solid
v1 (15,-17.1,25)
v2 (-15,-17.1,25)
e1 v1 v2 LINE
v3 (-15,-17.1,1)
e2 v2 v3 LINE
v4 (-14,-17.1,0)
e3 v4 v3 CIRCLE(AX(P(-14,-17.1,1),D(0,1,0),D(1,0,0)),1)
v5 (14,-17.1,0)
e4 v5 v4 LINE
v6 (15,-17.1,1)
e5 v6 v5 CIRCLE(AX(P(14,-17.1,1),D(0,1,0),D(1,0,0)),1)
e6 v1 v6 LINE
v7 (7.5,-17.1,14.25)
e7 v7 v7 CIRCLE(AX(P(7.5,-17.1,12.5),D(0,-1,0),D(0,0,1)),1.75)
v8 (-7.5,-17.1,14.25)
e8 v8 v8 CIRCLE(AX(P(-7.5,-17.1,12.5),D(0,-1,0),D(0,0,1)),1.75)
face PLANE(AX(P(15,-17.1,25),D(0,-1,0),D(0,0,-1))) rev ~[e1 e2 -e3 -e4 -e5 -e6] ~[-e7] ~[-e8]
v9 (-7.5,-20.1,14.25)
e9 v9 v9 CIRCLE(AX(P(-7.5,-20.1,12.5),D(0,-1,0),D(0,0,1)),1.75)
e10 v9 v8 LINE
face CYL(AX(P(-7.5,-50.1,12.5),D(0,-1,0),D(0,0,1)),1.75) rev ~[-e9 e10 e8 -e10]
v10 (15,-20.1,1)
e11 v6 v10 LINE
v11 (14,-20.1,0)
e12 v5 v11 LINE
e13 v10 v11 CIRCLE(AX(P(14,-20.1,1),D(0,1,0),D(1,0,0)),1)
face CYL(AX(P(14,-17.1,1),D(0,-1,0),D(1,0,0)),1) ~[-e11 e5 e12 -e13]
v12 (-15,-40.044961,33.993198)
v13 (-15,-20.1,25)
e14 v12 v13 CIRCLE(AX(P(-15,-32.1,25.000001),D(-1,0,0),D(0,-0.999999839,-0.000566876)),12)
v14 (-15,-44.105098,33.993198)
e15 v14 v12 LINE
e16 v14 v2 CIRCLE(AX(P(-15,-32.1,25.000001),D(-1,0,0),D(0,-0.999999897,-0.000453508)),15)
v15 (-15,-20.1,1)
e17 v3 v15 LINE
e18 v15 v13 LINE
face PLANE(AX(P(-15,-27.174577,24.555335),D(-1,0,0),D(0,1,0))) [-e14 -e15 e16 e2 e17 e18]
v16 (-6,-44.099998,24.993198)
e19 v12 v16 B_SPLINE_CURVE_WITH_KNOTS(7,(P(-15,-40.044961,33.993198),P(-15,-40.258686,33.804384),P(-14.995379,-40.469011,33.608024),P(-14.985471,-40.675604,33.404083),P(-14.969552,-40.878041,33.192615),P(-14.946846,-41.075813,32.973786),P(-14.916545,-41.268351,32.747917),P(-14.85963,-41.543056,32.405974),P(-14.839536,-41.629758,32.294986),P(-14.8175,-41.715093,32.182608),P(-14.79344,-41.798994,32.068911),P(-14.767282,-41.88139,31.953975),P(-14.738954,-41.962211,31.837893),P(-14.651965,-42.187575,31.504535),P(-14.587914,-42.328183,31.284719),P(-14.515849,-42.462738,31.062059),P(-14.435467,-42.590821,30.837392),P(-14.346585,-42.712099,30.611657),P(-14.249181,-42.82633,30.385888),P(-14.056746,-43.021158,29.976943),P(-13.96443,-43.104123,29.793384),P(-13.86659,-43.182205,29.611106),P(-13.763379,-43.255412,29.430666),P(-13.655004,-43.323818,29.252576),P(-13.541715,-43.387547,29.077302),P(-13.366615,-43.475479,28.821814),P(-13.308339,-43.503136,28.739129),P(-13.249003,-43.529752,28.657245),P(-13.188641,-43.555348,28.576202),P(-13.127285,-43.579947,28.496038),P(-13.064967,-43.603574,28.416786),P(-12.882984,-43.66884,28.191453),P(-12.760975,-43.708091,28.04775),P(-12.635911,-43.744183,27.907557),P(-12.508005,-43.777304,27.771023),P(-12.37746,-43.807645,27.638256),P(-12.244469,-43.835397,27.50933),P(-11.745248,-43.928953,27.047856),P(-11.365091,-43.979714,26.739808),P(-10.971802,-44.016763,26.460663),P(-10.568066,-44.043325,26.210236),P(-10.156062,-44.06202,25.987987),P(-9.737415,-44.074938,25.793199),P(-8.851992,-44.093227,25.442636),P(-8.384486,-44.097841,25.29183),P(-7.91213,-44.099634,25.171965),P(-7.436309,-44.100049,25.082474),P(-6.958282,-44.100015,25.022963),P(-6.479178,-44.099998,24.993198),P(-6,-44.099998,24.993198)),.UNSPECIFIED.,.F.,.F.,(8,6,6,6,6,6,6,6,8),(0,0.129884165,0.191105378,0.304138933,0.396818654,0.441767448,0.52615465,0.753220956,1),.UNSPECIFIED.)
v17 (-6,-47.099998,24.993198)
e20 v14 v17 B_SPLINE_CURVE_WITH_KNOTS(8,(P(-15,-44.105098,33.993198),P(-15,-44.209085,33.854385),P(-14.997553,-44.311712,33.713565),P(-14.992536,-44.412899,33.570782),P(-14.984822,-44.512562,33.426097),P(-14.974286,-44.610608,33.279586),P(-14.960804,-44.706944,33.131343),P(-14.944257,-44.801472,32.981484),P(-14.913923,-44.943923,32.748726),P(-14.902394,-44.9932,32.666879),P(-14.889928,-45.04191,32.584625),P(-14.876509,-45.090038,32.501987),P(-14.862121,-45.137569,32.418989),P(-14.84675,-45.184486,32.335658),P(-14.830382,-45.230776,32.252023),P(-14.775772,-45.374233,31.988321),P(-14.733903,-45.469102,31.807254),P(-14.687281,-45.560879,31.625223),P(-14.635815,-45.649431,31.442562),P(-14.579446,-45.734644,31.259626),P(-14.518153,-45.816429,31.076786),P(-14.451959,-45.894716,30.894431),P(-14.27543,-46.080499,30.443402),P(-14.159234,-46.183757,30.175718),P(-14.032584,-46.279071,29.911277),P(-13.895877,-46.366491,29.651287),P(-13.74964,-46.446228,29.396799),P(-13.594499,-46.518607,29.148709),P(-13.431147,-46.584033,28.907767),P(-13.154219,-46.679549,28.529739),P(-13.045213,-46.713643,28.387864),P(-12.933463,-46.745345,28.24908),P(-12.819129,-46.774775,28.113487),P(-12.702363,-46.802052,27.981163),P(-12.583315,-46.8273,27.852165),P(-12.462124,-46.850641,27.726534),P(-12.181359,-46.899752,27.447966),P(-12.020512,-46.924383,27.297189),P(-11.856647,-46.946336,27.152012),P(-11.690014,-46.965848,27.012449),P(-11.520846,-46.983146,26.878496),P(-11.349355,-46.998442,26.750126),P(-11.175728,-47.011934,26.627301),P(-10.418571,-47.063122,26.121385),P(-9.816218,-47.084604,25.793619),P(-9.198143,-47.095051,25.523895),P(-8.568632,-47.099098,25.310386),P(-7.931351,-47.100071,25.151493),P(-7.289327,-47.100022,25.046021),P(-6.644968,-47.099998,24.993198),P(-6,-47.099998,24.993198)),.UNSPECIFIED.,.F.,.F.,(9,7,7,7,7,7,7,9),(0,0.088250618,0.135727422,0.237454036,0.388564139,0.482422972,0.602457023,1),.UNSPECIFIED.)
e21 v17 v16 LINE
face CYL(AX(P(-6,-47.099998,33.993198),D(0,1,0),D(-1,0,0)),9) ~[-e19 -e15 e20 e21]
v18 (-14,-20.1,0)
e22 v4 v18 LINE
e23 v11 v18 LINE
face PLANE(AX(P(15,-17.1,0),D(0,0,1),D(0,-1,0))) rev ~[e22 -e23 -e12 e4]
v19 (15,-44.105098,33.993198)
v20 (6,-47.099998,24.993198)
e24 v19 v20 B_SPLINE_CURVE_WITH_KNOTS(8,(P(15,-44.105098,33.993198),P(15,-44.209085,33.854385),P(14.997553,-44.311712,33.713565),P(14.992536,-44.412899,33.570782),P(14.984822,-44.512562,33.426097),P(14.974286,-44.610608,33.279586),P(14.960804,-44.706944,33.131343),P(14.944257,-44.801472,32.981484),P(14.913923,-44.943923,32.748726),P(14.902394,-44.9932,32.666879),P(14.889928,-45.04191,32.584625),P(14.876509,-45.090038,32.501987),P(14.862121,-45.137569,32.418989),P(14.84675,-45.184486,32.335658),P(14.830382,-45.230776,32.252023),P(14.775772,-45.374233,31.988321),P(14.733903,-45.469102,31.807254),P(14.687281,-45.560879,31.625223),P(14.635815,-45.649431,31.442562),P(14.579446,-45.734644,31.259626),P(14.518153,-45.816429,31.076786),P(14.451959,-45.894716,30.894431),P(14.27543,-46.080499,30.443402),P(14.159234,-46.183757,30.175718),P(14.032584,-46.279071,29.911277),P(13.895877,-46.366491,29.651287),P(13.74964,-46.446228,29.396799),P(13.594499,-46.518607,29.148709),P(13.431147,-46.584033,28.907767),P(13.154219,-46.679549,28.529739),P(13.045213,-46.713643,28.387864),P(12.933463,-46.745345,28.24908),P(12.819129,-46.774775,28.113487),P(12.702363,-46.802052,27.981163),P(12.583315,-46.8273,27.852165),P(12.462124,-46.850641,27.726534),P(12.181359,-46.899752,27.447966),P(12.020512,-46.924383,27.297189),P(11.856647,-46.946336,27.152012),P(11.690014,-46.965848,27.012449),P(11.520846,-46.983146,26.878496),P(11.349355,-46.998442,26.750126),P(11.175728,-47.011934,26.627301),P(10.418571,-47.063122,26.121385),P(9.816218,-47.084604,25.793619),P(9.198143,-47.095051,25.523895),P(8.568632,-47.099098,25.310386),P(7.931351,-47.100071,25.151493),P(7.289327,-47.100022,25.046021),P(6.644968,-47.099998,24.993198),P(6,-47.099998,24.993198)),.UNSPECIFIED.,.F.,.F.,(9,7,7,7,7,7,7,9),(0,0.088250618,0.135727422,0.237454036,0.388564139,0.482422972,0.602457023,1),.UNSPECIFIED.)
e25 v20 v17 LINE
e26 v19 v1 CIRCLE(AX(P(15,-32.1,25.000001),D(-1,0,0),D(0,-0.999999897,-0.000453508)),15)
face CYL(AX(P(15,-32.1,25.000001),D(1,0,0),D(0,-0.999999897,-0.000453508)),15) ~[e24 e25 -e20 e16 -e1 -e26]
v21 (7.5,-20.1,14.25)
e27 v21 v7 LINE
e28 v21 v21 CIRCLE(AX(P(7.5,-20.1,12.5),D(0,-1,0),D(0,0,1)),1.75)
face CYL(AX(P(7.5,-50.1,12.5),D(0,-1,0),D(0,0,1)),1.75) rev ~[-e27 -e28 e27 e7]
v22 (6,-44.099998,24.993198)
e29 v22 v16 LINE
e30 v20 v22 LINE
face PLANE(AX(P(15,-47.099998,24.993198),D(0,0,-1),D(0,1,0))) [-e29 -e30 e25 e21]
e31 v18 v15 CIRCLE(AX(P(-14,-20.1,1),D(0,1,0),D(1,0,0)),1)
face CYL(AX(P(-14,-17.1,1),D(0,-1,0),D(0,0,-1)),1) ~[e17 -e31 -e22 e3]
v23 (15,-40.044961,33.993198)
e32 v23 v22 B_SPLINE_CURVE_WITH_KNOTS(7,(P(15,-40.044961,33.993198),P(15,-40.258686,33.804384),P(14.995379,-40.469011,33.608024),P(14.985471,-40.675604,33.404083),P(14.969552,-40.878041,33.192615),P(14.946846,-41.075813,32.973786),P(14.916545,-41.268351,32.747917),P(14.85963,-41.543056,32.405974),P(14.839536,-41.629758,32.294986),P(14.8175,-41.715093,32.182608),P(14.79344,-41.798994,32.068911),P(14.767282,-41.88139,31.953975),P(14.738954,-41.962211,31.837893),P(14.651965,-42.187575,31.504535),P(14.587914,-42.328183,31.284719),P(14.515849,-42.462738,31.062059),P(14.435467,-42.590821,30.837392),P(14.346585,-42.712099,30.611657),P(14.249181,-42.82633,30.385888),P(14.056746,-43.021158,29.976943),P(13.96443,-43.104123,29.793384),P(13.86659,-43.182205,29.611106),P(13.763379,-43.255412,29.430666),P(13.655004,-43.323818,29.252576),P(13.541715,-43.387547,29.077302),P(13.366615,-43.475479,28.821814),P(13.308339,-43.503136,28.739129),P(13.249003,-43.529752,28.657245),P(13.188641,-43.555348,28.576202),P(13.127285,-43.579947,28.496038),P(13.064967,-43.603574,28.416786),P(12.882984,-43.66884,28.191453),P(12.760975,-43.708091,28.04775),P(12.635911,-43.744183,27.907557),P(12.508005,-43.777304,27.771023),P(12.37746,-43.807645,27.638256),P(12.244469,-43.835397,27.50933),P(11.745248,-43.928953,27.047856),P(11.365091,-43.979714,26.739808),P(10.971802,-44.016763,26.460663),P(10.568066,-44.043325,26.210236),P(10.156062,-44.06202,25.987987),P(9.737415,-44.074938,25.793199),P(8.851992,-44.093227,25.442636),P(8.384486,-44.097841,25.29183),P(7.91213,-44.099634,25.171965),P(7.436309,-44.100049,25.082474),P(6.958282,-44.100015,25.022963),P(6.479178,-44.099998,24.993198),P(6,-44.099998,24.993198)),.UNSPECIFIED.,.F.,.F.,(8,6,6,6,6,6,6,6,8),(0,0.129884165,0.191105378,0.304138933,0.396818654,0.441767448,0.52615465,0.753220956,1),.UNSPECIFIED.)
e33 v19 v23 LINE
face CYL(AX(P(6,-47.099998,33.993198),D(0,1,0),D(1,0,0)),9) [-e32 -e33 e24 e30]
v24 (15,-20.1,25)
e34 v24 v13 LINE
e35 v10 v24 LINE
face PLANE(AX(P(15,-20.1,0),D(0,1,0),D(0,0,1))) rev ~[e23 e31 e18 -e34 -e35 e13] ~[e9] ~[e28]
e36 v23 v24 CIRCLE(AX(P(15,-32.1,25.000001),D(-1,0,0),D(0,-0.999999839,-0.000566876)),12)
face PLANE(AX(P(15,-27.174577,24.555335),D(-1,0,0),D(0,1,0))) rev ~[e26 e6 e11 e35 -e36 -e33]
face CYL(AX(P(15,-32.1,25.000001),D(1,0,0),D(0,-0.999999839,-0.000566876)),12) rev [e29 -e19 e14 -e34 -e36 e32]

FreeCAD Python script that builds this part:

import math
import FreeCAD as App
import Part
import Sketcher

V = App.Vector


def edges_at(feature, points):
    """Names of the edges that pass closest to the given points."""
    edges = feature.Shape.Edges
    near = lambda p: min(range(len(edges)), key=lambda i: edges[i].distToShape(Part.Vertex(*p))[0])
    return sorted({f"Edge{near(p) + 1}" for p in points})

doc = App.newDocument("Part")
params = doc.addObject("Spreadsheet::Sheet", "Params")
for row, (alias, value) in enumerate([
    ("sketch1_radius", "12 mm"),
    ("sketch1_radius2", "15 mm"),
    ("sketch1_height", "25 mm"),
    ("pad1_length", "30 mm"),
    ("sketch2_diameter", "3.5 mm"),
    ("fillet_radius", "9 mm"),
    ("fillet2_radius", "1 mm"),
], start=1):
    params.set(f"A{row}", alias)
    params.set(f"B{row}", "=" + value)
    params.setAlias(f"B{row}", alias)

body = doc.addObject("PartDesign::Body", "Body")

# Sketch on XY plane
sketch1 = body.newObject("Sketcher::SketchObject", "Sketch")
sketch1.AttachmentSupport = (doc.getObject("XY_Plane"), [""])
sketch1.MapMode = "FlatFace"
sketch1.addGeometry(Part.LineSegment(V(0, 25, 0), V(-3, 25, 0)), False)
sketch1.addGeometry(Part.LineSegment(V(-3, 25, 0), V(-3, 0, 0)), False)
sketch1.addGeometry(Part.ArcOfCircle(Part.Circle(V(-15, -0.000001, 0), V(0, 0, 1), 12), math.radians(179.96752), math.radians(360.000002)), False)
sketch1.addGeometry(Part.LineSegment(V(-26.999998, 0.006802, 0), V(-29.999998, 0.006802, 0)), False)
sketch1.addGeometry(Part.ArcOfCircle(Part.Circle(V(-15, -0.000001, 0), V(0, 0, 1), 15), math.radians(179.974016), math.radians(360.000002)), False)
sketch1.addGeometry(Part.LineSegment(V(0, 0, 0), V(0, 25, 0)), False)
sketch1.addConstraint(Sketcher.Constraint("Coincident", 0, 2, 1, 1))
sketch1.addConstraint(Sketcher.Constraint("Tangent", 1, 2, 2, 2))
sketch1.addConstraint(Sketcher.Constraint("Coincident", 2, 1, 3, 1))
sketch1.addConstraint(Sketcher.Constraint("Coincident", 3, 2, 4, 1))
sketch1.addConstraint(Sketcher.Constraint("Tangent", 4, 2, 5, 1))
sketch1.addConstraint(Sketcher.Constraint("Coincident", 5, 2, 0, 1))
sketch1.addConstraint(Sketcher.Constraint("Horizontal", 0))
sketch1.addConstraint(Sketcher.Constraint("Vertical", 1))
sketch1.addConstraint(Sketcher.Constraint("Horizontal", 3))
sketch1.addConstraint(Sketcher.Constraint("Vertical", 5))
sketch1.addConstraint(Sketcher.Constraint("Coincident", 4, 2, -1, 1))
sketch1.addConstraint(Sketcher.Constraint("Coincident", 4, 3, 2, 3))
sketch1.addConstraint(Sketcher.Constraint("Radius", 2, 12.0))
sketch1.addConstraint(Sketcher.Constraint("Radius", 4, 15.0))
sketch1.addConstraint(Sketcher.Constraint("DistanceY", 1, 2, 1, 1, 25.0))
sketch1.addConstraint(Sketcher.Constraint("DistanceY", -1, 1, 2, 1, 0.006802))
sketch1.setExpression("Constraints[12]", "Params.sketch1_radius")
sketch1.setExpression("Constraints[13]", "Params.sketch1_radius2")
sketch1.setExpression("Constraints[14]", "Params.sketch1_height")
pad1 = body.newObject("PartDesign::Pad", "Pad")
pad1.Profile = sketch1
pad1.setExpression("Length", "Params.pad1_length")

# Sketch on YZ plane
sketch2 = body.newObject("Sketcher::SketchObject", "Sketch001")
sketch2.AttachmentSupport = (doc.getObject("YZ_Plane"), [""])
sketch2.MapMode = "FlatFace"
sketch2.AttachmentOffset = App.Placement(V(0, 0, -33), App.Rotation())
sketch2.addGeometry(Part.Circle(V(12.5, 7.5, 0), V(0, 0, 1), 1.75), False)
sketch2.addGeometry(Part.Circle(V(12.5, 22.5, 0), V(0, 0, 1), 1.75), False)
sketch2.addConstraint(Sketcher.Constraint("Equal", 0, 1))
sketch2.addConstraint(Sketcher.Constraint("Vertical", 0, 3, 1, 3))
sketch2.addConstraint(Sketcher.Constraint("Diameter", 0, 3.5))
sketch2.addConstraint(Sketcher.Constraint("DistanceY", 0, 3, 1, 3, 15.0))
sketch2.addConstraint(Sketcher.Constraint("DistanceX", -1, 1, 0, 3, 12.5))
sketch2.addConstraint(Sketcher.Constraint("DistanceY", -1, 1, 0, 3, 7.5))
sketch2.setExpression("Constraints[2]", "Params.sketch2_diameter")
pocket1 = body.newObject("PartDesign::Pocket", "Pocket")
pocket1.Profile = sketch2
pocket1.Type = "ThroughAll"
pocket1.Reversed = True
doc.recompute()

fillet = body.newObject("PartDesign::Fillet", "Fillet")
fillet.Base = (pocket1, edges_at(pocket1, [(-28.5, 0.007, 30), (-28.5, 0.007, 0)]))
fillet.setExpression("Radius", "Params.fillet_radius")
doc.recompute()

fillet2 = body.newObject("PartDesign::Fillet", "Fillet001")
fillet2.Base = (fillet, edges_at(fillet, [(-1.5, 25, 30), (-1.5, 25, 0)]))
fillet2.setExpression("Radius", "Params.fillet2_radius")
body2 = doc.addObject("PartDesign::Body", "Body001")
doc.recompute()

body.Placement = App.Placement(V(0, 0, 0), App.Rotation(V(1, 0, 0), 270))
boolean = body2.newObject("PartDesign::Boolean", "Boolean")
boolean.Type = "Fuse"
boolean.addObjects([body])
body3 = doc.addObject("PartDesign::Body", "Body002")
doc.recompute()

body2.Placement = App.Placement(V(15, -17.1, 25), App.Rotation(V(0, 0, 1), 90))
boolean2 = body3.newObject("PartDesign::Boolean", "Boolean001")
boolean2.Type = "Fuse"
boolean2.addObjects([body2])

doc.recompute()
